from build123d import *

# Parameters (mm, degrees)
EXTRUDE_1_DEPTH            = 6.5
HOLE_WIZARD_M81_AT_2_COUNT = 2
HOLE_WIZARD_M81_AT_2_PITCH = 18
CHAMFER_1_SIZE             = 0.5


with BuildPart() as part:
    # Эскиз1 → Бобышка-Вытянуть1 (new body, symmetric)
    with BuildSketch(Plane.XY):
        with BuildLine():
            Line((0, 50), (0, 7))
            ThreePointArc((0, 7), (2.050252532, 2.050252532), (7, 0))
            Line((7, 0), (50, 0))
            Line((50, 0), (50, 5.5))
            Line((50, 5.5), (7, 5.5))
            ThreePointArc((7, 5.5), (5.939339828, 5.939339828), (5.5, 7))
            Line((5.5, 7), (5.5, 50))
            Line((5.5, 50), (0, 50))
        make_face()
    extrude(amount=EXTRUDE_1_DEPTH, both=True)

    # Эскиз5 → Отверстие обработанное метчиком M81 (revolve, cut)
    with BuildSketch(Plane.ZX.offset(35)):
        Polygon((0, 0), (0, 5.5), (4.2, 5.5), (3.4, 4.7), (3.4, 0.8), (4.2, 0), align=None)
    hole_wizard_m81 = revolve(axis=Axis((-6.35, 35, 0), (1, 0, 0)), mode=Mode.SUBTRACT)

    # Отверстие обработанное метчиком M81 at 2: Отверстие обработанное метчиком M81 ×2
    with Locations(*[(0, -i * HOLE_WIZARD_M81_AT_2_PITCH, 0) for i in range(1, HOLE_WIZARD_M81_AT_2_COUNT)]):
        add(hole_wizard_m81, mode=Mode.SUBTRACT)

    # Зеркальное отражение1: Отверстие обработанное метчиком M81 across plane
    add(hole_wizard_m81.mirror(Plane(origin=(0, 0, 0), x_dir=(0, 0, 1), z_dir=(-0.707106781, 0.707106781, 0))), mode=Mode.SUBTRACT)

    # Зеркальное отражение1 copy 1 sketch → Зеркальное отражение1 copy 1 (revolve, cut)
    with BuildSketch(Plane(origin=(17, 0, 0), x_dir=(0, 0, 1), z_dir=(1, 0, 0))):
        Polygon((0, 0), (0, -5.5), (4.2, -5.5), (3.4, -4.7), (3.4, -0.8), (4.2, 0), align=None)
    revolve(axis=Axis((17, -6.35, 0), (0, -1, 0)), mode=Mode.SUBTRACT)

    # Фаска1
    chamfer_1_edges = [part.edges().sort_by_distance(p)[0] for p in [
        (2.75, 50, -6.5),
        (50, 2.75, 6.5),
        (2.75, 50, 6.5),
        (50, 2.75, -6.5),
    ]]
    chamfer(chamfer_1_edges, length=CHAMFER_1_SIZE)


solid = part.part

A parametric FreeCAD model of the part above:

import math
import FreeCAD as App
import Part
import Sketcher

V = App.Vector
Q = App.Units.Quantity


def edges_at(feature, points):
    """Names of the edges that pass closest to the given points."""
    edges = feature.Shape.Edges
    near = lambda p: min(range(len(edges)), key=lambda i: edges[i].distToShape(Part.Vertex(*p))[0])
    return sorted({f"Edge{near(p) + 1}" for p in points})


def add_polygon(sketch, points):
    """Adds a closed chain of lines whose ends are joined by coincident constraints."""
    first, n = sketch.GeometryCount, len(points)
    for a, b in zip(points, points[1:] + points[:1]):
        sketch.addGeometry(Part.LineSegment(App.Vector(*a, 0), App.Vector(*b, 0)), False)
    for i in range(n):
        sketch.addConstraint(Sketcher.Constraint("Coincident", first + i, 2, first + (i + 1) % n, 1))

doc = App.newDocument("Part")
body = doc.addObject("PartDesign::Body", "Body")

sketch1 = body.newObject("Sketcher::SketchObject", "Sketch")
sketch1.AttachmentSupport = (doc.getObject("XY_Plane"), [""])
sketch1.MapMode = "FlatFace"
sketch1.addGeometry(Part.LineSegment(V(0, 50, 0), V(0, 7, 0)), False)
sketch1.addGeometry(Part.ArcOfCircle(Part.Circle(V(7, 7, 0), V(0, 0, 1), 7), math.radians(-180), math.radians(-90)), False)
sketch1.addGeometry(Part.LineSegment(V(7, 0, 0), V(50, 0, 0)), False)
sketch1.addGeometry(Part.LineSegment(V(50, 0, 0), V(50, 5.5, 0)), False)
sketch1.addGeometry(Part.LineSegment(V(50, 5.5, 0), V(7, 5.5, 0)), False)
sketch1.addGeometry(Part.ArcOfCircle(Part.Circle(V(7, 7, 0), V(0, 0, 1), 1.5), math.radians(180), math.radians(270)), False)
sketch1.addGeometry(Part.LineSegment(V(5.5, 7, 0), V(5.5, 50, 0)), False)
sketch1.addGeometry(Part.LineSegment(V(5.5, 50, 0), V(0, 50, 0)), False)
sketch1.addConstraint(Sketcher.Constraint("Tangent", 0, 2, 1, 1))
sketch1.addConstraint(Sketcher.Constraint("Tangent", 1, 2, 2, 1))
sketch1.addConstraint(Sketcher.Constraint("Coincident", 2, 2, 3, 1))
sketch1.addConstraint(Sketcher.Constraint("Coincident", 3, 2, 4, 1))
sketch1.addConstraint(Sketcher.Constraint("Tangent", 4, 2, 5, 2))
sketch1.addConstraint(Sketcher.Constraint("Tangent", 5, 1, 6, 1))
sketch1.addConstraint(Sketcher.Constraint("Coincident", 6, 2, 7, 1))
sketch1.addConstraint(Sketcher.Constraint("Coincident", 7, 2, 0, 1))
sketch1.addConstraint(Sketcher.Constraint("Vertical", 0))
sketch1.addConstraint(Sketcher.Constraint("Horizontal", 2))
sketch1.addConstraint(Sketcher.Constraint("Vertical", 3))
sketch1.addConstraint(Sketcher.Constraint("Horizontal", 4))
sketch1.addConstraint(Sketcher.Constraint("Vertical", 6))
sketch1.addConstraint(Sketcher.Constraint("Horizontal", 7))
sketch1.addConstraint(Sketcher.Constraint("Coincident", 5, 3, 1, 3))
sketch1.addConstraint(Sketcher.Constraint("PointOnObject", 0, 2, -2))
sketch1.addConstraint(Sketcher.Constraint("PointOnObject", 1, 2, -1))
sketch1.addConstraint(Sketcher.Constraint("Equal", 4, 0))
sketch1.addConstraint(Sketcher.Constraint("Radius", 1, Q("7 mm")))
sketch1.addConstraint(Sketcher.Constraint("Radius", 5, Q("1.5 mm")))
sketch1.addConstraint(Sketcher.Constraint("DistanceX", 2, 1, 2, 2, Q("43 mm")))
pad1 = body.newObject("PartDesign::Pad", "Pad")
pad1.Profile = sketch1
pad1.Length = 13
pad1.Midplane = True

sketch2 = body.newObject("Sketcher::SketchObject", "Sketch001")
sketch2.AttachmentSupport = (doc.getObject("XZ_Plane"), [""])
sketch2.MapMode = "FlatFace"
sketch2.AttachmentOffset = App.Placement(V(0, 0, -35), App.Rotation())
add_polygon(sketch2, [(5.5, 0), (0, 0), (0, 4.2), (0.8, 3.4), (4.7, 3.4), (5.5, 4.2)])
sketch2.addConstraint(Sketcher.Constraint("Horizontal", 0))
sketch2.addConstraint(Sketcher.Constraint("Vertical", 1))
sketch2.addConstraint(Sketcher.Constraint("Horizontal", 3))
sketch2.addConstraint(Sketcher.Constraint("Vertical", 5))
sketch2.addConstraint(Sketcher.Constraint("Coincident", 0, 2, -1, 1))
sketch2.addConstraint(Sketcher.Constraint("Perpendicular", 2, 4))
sketch2.addConstraint(Sketcher.Constraint("Horizontal", 1, 2, 4, 2))
sketch2.addConstraint(Sketcher.Constraint("Equal", 2, 4))
sketch2.addConstraint(Sketcher.Constraint("DistanceX", 0, 2, 0, 1, Q("5.5 mm")))
sketch2.addConstraint(Sketcher.Constraint("DistanceX", 3, 1, 3, 2, Q("3.9 mm")))
sketch2.addConstraint(Sketcher.Constraint("DistanceY", 1, 1, 1, 2, Q("4.2 mm")))
groove = body.newObject("PartDesign::Groove", "Groove")
groove.Profile = sketch2
groove.ReferenceAxis = (sketch2, ["H_Axis"])
groove.Angle = 360
doc.recompute()

linearpattern = body.newObject("PartDesign::LinearPattern", "LinearPattern")
linearpattern.Originals = [groove]
linearpattern.Direction = (doc.getObject("Y_Axis"), [""])
linearpattern.Mode = "offset"
linearpattern.Offset = 18
linearpattern.Occurrences = 2
linearpattern.Reversed = True
body.Tip = linearpattern
doc.recompute()

datumplane = body.newObject("PartDesign::Plane", "DatumPlane")
datumplane.Placement = App.Placement(V(0, 0, 0), App.Rotation(V(0.707106781, 0.707106781, 0), V(0, 0, -1), V(-0.707106781, 0.707106781, 0), "ZXY"))
mirrored = body.newObject("PartDesign::Mirrored", "Mirrored")
mirrored.Originals = [groove]
mirrored.MirrorPlane = (datumplane, [""])
body.Tip = mirrored

sketch3 = body.newObject("Sketcher::SketchObject", "Sketch002")
sketch3.AttachmentSupport = (doc.getObject("YZ_Plane"), [""])
sketch3.MapMode = "FlatFace"
sketch3.AttachmentOffset = App.Placement(V(0, 0, 17), App.Rotation())
add_polygon(sketch3, [(0, 0), (5.5, 0), (5.5, 4.2), (4.7, 3.4), (0.8, 3.4), (0, 4.2)])
sketch3.addConstraint(Sketcher.Constraint("Horizontal", 0))
sketch3.addConstraint(Sketcher.Constraint("Vertical", 1))
sketch3.addConstraint(Sketcher.Constraint("Horizontal", 3))
sketch3.addConstraint(Sketcher.Constraint("Vertical", 5))
sketch3.addConstraint(Sketcher.Constraint("Coincident", 5, 2, -1, 1))
sketch3.addConstraint(Sketcher.Constraint("Perpendicular", 2, 4))
sketch3.addConstraint(Sketcher.Constraint("Horizontal", 1, 2, 4, 2))
sketch3.addConstraint(Sketcher.Constraint("Equal", 2, 4))
sketch3.addConstraint(Sketcher.Constraint("DistanceX", 0, 1, 0, 2, Q("5.5 mm")))
sketch3.addConstraint(Sketcher.Constraint("DistanceX", 3, 2, 3, 1, Q("3.9 mm")))
sketch3.addConstraint(Sketcher.Constraint("DistanceY", 1, 1, 1, 2, Q("4.2 mm")))
groove2 = body.newObject("PartDesign::Groove", "Groove001")
groove2.Profile = sketch3
groove2.ReferenceAxis = (sketch3, ["H_Axis"])
groove2.Angle = 360
doc.recompute()

chamfer = body.newObject("PartDesign::Chamfer", "Chamfer")
chamfer.Base = (groove2, edges_at(groove2, [
    (2.75, 50, -6.5),
    (50, 2.75, 6.5),
    (2.75, 50, 6.5),
    (50, 2.75, -6.5),
]))
chamfer.Size = 0.5

doc.recompute()
